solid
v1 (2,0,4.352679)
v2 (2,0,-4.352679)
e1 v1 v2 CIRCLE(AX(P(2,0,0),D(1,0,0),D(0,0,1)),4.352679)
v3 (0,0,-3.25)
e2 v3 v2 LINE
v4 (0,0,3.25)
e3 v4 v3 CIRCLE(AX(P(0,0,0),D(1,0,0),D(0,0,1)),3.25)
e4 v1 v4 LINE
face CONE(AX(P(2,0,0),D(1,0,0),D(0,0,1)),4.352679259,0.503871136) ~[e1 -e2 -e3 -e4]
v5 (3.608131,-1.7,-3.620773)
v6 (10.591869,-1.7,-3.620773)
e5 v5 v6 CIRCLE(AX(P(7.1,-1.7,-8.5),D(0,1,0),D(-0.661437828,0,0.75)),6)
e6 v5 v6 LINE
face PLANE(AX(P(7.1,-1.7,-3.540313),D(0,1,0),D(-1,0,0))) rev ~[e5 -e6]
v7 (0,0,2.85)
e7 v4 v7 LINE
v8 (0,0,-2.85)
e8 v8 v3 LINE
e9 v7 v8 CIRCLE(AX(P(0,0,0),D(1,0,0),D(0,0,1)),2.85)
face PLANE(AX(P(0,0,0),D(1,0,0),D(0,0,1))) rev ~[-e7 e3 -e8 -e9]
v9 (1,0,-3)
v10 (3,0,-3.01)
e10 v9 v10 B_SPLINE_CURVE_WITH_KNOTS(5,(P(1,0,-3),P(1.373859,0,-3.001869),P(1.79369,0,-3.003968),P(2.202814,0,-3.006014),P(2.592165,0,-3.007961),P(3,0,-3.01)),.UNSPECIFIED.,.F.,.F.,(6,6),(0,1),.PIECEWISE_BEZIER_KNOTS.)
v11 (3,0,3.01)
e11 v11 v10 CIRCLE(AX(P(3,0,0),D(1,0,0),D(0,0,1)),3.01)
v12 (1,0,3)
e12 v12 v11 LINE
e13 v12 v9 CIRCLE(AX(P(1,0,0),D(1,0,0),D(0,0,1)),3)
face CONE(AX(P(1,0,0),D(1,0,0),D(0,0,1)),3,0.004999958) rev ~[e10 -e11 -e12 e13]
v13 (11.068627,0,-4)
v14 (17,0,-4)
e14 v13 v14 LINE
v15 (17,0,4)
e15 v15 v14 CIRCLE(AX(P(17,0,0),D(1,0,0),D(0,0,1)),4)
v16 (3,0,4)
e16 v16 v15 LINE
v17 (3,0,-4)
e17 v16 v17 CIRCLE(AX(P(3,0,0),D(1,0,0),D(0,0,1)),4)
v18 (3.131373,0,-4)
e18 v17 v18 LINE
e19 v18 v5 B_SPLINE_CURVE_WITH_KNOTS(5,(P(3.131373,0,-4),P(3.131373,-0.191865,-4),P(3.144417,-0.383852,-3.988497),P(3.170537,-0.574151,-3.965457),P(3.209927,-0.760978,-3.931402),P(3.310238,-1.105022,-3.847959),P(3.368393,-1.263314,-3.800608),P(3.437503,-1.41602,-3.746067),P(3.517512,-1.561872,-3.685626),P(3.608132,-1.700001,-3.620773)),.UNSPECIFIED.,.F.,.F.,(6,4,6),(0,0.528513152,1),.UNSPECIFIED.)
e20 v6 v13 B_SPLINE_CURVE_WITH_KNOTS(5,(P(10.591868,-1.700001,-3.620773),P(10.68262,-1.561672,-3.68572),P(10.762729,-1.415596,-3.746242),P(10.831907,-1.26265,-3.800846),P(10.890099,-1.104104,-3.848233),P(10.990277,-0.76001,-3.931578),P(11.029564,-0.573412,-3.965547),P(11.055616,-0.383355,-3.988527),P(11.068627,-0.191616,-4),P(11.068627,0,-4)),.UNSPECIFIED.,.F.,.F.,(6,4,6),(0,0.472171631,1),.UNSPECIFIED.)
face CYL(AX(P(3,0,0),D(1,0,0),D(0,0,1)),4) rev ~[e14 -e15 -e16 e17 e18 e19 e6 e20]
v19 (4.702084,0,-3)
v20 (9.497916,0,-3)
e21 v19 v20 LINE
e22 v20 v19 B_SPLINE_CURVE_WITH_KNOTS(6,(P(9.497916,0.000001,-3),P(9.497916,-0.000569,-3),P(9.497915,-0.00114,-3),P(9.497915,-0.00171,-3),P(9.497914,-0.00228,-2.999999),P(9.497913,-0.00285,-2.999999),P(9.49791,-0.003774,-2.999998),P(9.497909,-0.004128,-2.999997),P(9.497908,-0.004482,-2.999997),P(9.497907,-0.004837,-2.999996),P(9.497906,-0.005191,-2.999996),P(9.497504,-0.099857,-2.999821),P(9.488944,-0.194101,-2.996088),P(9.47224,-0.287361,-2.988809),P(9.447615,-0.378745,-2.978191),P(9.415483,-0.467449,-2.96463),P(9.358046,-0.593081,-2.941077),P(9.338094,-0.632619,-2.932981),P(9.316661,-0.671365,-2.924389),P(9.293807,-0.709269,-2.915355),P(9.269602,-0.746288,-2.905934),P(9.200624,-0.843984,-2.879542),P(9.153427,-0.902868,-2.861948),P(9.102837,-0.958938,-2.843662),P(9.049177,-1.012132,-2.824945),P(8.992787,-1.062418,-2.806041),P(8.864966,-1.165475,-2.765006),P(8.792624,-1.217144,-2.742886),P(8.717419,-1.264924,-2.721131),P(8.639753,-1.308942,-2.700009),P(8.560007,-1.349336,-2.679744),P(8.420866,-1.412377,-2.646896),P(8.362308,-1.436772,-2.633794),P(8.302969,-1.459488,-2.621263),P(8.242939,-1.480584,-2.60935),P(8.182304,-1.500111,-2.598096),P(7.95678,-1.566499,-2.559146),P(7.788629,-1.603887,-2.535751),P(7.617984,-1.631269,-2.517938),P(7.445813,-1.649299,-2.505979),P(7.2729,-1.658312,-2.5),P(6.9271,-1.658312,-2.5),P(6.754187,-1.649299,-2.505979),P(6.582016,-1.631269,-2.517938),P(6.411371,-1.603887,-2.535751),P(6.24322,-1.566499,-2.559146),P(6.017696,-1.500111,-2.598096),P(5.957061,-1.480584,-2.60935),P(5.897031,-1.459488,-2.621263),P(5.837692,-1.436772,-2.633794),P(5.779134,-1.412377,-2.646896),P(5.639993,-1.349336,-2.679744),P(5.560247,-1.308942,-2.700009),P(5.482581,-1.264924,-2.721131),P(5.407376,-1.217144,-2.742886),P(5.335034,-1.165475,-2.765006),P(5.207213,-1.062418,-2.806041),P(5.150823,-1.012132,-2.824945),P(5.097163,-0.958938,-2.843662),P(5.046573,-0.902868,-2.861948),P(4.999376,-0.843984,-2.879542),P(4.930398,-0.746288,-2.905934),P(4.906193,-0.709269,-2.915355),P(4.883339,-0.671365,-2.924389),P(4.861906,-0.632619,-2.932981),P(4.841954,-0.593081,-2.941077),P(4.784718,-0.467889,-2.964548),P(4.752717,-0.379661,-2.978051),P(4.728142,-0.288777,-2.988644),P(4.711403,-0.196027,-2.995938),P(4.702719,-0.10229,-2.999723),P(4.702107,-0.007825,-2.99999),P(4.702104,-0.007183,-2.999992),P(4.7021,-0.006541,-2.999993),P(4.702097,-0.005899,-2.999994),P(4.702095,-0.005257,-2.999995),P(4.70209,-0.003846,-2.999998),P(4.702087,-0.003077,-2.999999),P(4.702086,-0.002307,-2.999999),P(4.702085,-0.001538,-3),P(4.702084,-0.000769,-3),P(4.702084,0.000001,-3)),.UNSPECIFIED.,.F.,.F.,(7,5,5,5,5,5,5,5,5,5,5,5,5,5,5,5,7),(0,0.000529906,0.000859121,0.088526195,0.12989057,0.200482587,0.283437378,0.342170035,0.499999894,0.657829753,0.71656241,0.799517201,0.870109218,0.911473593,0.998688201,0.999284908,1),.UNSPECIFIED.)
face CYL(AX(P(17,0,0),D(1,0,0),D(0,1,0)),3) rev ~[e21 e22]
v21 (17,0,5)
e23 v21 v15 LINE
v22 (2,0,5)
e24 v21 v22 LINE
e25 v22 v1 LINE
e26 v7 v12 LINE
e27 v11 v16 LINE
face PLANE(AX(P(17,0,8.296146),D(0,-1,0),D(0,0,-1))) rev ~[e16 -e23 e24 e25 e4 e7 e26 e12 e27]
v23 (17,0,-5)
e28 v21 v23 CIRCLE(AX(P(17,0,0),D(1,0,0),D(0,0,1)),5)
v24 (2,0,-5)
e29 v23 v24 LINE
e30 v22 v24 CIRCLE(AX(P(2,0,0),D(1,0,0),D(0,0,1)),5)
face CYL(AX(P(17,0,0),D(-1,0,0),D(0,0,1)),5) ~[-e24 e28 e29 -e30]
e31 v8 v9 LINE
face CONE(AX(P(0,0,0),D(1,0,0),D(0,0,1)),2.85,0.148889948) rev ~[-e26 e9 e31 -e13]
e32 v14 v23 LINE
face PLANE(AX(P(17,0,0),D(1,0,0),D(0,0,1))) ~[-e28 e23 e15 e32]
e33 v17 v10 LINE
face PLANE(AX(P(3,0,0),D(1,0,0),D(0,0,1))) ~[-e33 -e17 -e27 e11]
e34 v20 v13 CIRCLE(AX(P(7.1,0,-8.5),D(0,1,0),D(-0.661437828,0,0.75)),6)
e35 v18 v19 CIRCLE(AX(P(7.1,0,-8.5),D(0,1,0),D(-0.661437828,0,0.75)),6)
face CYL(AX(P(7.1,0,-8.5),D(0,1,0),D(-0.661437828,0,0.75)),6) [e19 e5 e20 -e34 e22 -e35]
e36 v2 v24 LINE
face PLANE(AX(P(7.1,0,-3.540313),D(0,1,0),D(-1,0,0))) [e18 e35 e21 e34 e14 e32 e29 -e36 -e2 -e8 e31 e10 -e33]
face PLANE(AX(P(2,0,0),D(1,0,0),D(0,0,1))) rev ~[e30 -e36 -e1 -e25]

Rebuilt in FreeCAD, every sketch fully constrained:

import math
import FreeCAD as App
import Part
import Sketcher

V = App.Vector
Q = App.Units.Quantity

doc = App.newDocument("Part")
body = doc.addObject("PartDesign::Body", "Body")

# Sketch on XZ plane
sketch1 = doc.addObject("Sketcher::SketchObject", "Sketch")
body.addObject(sketch1)
sketch1.AttachmentSupport = (doc.XZ_Plane, [""])
sketch1.MapMode = "FlatFace"
sketch1.addGeometry(Part.LineSegment(V(0, 3.25, 0), V(0, 2.85, 0)), False)
sketch1.addGeometry(Part.LineSegment(V(0, 2.85, 0), V(1, 3, 0)), False)
sketch1.addGeometry(Part.LineSegment(V(1, 3, 0), V(3, 3.01, 0)), False)
sketch1.addGeometry(Part.LineSegment(V(3, 3.01, 0), V(3, 4, 0)), False)
sketch1.addGeometry(Part.LineSegment(V(3, 4, 0), V(17, 4, 0)), False)
sketch1.addGeometry(Part.LineSegment(V(17, 4, 0), V(17, 5, 0)), False)
sketch1.addGeometry(Part.LineSegment(V(17, 5, 0), V(2, 5, 0)), False)
sketch1.addGeometry(Part.LineSegment(V(2, 5, 0), V(2, 4.352679, 0)), False)
sketch1.addGeometry(Part.LineSegment(V(2, 4.352679, 0), V(0, 3.25, 0)), False)
sketch1.addConstraint(Sketcher.Constraint("Coincident", 0, 2, 1, 1))
sketch1.addConstraint(Sketcher.Constraint("Coincident", 1, 2, 2, 1))
sketch1.addConstraint(Sketcher.Constraint("Coincident", 2, 2, 3, 1))
sketch1.addConstraint(Sketcher.Constraint("Coincident", 3, 2, 4, 1))
sketch1.addConstraint(Sketcher.Constraint("Coincident", 4, 2, 5, 1))
sketch1.addConstraint(Sketcher.Constraint("Coincident", 5, 2, 6, 1))
sketch1.addConstraint(Sketcher.Constraint("Coincident", 6, 2, 7, 1))
sketch1.addConstraint(Sketcher.Constraint("Coincident", 7, 2, 8, 1))
sketch1.addConstraint(Sketcher.Constraint("Coincident", 8, 2, 0, 1))
sketch1.addConstraint(Sketcher.Constraint("Vertical", 0))
sketch1.addConstraint(Sketcher.Constraint("Vertical", 3))
sketch1.addConstraint(Sketcher.Constraint("Horizontal", 4))
sketch1.addConstraint(Sketcher.Constraint("Vertical", 5))
sketch1.addConstraint(Sketcher.Constraint("Horizontal", 6))
sketch1.addConstraint(Sketcher.Constraint("Vertical", 7))
sketch1.addConstraint(Sketcher.Constraint("PointOnObject", 0, 2, -2))
sketch1.addConstraint(Sketcher.Constraint("DistanceX", 4, 1, 4, 2, Q("14 mm")))
sketch1.addConstraint(Sketcher.Constraint("DistanceX", 6, 2, 6, 1, Q("15 mm")))
sketch1.addConstraint(Sketcher.Constraint("DistanceY", 5, 1, 5, 2, Q("1 mm")))
sketch1.addConstraint(Sketcher.Constraint("DistanceY", 0, 2, 0, 1, Q("0.4 mm")))
sketch1.addConstraint(Sketcher.Constraint("DistanceX", -1, 1, 1, 2, Q("1 mm")))
sketch1.addConstraint(Sketcher.Constraint("DistanceY", -1, 1, 1, 2, Q("3 mm")))
sketch1.addConstraint(Sketcher.Constraint("DistanceX", -1, 1, 2, 2, Q("3 mm")))
sketch1.addConstraint(Sketcher.Constraint("DistanceY", -1, 1, 3, 2, Q("4 mm")))
sketch1.addConstraint(Sketcher.Constraint("DistanceY", 3, 1, 3, 2, Q("0.99 mm")))
sketch1.addConstraint(Sketcher.Constraint("DistanceY", -1, 1, 0, 2, Q("2.85 mm")))
sketch1.addConstraint(Sketcher.Constraint("DistanceY", 7, 2, 7, 1, Q("0.647321 mm")))
revolution = doc.addObject("PartDesign::Revolution", "Revolution")
body.addObject(revolution)
revolution.Profile = sketch1
revolution.ReferenceAxis = (sketch1, ["H_Axis"])
revolution.Angle = 360

# Sketch on YZ plane
sketch2 = doc.addObject("Sketcher::SketchObject", "Sketch001")
body.addObject(sketch2)
sketch2.AttachmentSupport = (doc.YZ_Plane, [""])
sketch2.MapMode = "FlatFace"
sketch2.AttachmentOffset = App.Placement(V(0, 0, 17), App.Rotation())
sketch2.addGeometry(Part.LineSegment(V(0, 8.296146, 0), V(0, -8.212886, 0)), False)
sketch2.addGeometry(Part.LineSegment(V(0, -8.212886, 0), V(10.234138, -8.383822, 0)), False)
sketch2.addGeometry(Part.LineSegment(V(10.234138, -8.383822, 0), V(10.234138, 8.296146, 0)), False)
sketch2.addGeometry(Part.LineSegment(V(10.234138, 8.296146, 0), V(0, 8.296146, 0)), False)
sketch2.addConstraint(Sketcher.Constraint("Coincident", 0, 2, 1, 1))
sketch2.addConstraint(Sketcher.Constraint("Coincident", 1, 2, 2, 1))
sketch2.addConstraint(Sketcher.Constraint("Coincident", 2, 2, 3, 1))
sketch2.addConstraint(Sketcher.Constraint("Coincident", 3, 2, 0, 1))
sketch2.addConstraint(Sketcher.Constraint("Vertical", 0))
sketch2.addConstraint(Sketcher.Constraint("Vertical", 2))
sketch2.addConstraint(Sketcher.Constraint("Horizontal", 3))
sketch2.addConstraint(Sketcher.Constraint("PointOnObject", 0, 2, -2))
sketch2.addConstraint(Sketcher.Constraint("DistanceY", 0, 2, 0, 1, Q("16.509032 mm")))
sketch2.addConstraint(Sketcher.Constraint("DistanceX", 3, 2, 3, 1, Q("10.234138 mm")))
sketch2.addConstraint(Sketcher.Constraint("DistanceY", 2, 1, 2, 2, Q("16.679968 mm")))
sketch2.addConstraint(Sketcher.Constraint("DistanceY", 1, 2, -1, 1, Q("8.383822 mm")))
pocket1 = doc.addObject("PartDesign::Pocket", "Pocket")
body.addObject(pocket1)
pocket1.Profile = sketch2
pocket1.Length = 25

# Sketch on XZ plane
sketch3 = doc.addObject("Sketcher::SketchObject", "Sketch002")
body.addObject(sketch3)
sketch3.AttachmentSupport = (doc.XZ_Plane, [""])
sketch3.MapMode = "FlatFace"
sketch3.addGeometry(Part.LineSegment(V(11.068627, -4, 0), V(3.131373, -4, 0)), False)
sketch3.addGeometry(Part.ArcOfCircle(Part.Circle(V(7.1, -8.5, 0), V(0, 0, 1), 6), math.radians(48.590378), math.radians(131.409622)), False)
sketch3.addConstraint(Sketcher.Constraint("Coincident", 0, 1, 1, 1))
sketch3.addConstraint(Sketcher.Constraint("Coincident", 1, 2, 0, 2))
sketch3.addConstraint(Sketcher.Constraint("Horizontal", 0))
sketch3.addConstraint(Sketcher.Constraint("Radius", 1, Q("6 mm")))
sketch3.addConstraint(Sketcher.Constraint("DistanceY", 0, 1, -1, 1, Q("4 mm")))
sketch3.addConstraint(Sketcher.Constraint("DistanceX", -1, 1, 1, 3, Q("7.1 mm")))
sketch3.addConstraint(Sketcher.Constraint("DistanceY", 1, 3, -1, 1, Q("8.5 mm")))
pad1 = doc.addObject("PartDesign::Pad", "Pad")
body.addObject(pad1)
pad1.Profile = sketch3
pad1.Length = 1.7

# Sketch on YZ plane
sketch4 = doc.addObject("Sketcher::SketchObject", "Sketch003")
body.addObject(sketch4)
sketch4.AttachmentSupport = (doc.YZ_Plane, [""])
sketch4.MapMode = "FlatFace"
sketch4.AttachmentOffset = App.Placement(V(0, 0, 17), App.Rotation())
sketch4.addGeometry(Part.Circle(V(0, 0, 0), V(0, 0, 1), 3), False)
sketch4.addConstraint(Sketcher.Constraint("Coincident", 0, 3, -1, 1))
sketch4.addConstraint(Sketcher.Constraint("Diameter", 0, Q("6 mm")))
pocket2 = doc.addObject("PartDesign::Pocket", "Pocket001")
body.addObject(pocket2)
pocket2.Profile = sketch4
pocket2.Length = 12.88

doc.recompute()
